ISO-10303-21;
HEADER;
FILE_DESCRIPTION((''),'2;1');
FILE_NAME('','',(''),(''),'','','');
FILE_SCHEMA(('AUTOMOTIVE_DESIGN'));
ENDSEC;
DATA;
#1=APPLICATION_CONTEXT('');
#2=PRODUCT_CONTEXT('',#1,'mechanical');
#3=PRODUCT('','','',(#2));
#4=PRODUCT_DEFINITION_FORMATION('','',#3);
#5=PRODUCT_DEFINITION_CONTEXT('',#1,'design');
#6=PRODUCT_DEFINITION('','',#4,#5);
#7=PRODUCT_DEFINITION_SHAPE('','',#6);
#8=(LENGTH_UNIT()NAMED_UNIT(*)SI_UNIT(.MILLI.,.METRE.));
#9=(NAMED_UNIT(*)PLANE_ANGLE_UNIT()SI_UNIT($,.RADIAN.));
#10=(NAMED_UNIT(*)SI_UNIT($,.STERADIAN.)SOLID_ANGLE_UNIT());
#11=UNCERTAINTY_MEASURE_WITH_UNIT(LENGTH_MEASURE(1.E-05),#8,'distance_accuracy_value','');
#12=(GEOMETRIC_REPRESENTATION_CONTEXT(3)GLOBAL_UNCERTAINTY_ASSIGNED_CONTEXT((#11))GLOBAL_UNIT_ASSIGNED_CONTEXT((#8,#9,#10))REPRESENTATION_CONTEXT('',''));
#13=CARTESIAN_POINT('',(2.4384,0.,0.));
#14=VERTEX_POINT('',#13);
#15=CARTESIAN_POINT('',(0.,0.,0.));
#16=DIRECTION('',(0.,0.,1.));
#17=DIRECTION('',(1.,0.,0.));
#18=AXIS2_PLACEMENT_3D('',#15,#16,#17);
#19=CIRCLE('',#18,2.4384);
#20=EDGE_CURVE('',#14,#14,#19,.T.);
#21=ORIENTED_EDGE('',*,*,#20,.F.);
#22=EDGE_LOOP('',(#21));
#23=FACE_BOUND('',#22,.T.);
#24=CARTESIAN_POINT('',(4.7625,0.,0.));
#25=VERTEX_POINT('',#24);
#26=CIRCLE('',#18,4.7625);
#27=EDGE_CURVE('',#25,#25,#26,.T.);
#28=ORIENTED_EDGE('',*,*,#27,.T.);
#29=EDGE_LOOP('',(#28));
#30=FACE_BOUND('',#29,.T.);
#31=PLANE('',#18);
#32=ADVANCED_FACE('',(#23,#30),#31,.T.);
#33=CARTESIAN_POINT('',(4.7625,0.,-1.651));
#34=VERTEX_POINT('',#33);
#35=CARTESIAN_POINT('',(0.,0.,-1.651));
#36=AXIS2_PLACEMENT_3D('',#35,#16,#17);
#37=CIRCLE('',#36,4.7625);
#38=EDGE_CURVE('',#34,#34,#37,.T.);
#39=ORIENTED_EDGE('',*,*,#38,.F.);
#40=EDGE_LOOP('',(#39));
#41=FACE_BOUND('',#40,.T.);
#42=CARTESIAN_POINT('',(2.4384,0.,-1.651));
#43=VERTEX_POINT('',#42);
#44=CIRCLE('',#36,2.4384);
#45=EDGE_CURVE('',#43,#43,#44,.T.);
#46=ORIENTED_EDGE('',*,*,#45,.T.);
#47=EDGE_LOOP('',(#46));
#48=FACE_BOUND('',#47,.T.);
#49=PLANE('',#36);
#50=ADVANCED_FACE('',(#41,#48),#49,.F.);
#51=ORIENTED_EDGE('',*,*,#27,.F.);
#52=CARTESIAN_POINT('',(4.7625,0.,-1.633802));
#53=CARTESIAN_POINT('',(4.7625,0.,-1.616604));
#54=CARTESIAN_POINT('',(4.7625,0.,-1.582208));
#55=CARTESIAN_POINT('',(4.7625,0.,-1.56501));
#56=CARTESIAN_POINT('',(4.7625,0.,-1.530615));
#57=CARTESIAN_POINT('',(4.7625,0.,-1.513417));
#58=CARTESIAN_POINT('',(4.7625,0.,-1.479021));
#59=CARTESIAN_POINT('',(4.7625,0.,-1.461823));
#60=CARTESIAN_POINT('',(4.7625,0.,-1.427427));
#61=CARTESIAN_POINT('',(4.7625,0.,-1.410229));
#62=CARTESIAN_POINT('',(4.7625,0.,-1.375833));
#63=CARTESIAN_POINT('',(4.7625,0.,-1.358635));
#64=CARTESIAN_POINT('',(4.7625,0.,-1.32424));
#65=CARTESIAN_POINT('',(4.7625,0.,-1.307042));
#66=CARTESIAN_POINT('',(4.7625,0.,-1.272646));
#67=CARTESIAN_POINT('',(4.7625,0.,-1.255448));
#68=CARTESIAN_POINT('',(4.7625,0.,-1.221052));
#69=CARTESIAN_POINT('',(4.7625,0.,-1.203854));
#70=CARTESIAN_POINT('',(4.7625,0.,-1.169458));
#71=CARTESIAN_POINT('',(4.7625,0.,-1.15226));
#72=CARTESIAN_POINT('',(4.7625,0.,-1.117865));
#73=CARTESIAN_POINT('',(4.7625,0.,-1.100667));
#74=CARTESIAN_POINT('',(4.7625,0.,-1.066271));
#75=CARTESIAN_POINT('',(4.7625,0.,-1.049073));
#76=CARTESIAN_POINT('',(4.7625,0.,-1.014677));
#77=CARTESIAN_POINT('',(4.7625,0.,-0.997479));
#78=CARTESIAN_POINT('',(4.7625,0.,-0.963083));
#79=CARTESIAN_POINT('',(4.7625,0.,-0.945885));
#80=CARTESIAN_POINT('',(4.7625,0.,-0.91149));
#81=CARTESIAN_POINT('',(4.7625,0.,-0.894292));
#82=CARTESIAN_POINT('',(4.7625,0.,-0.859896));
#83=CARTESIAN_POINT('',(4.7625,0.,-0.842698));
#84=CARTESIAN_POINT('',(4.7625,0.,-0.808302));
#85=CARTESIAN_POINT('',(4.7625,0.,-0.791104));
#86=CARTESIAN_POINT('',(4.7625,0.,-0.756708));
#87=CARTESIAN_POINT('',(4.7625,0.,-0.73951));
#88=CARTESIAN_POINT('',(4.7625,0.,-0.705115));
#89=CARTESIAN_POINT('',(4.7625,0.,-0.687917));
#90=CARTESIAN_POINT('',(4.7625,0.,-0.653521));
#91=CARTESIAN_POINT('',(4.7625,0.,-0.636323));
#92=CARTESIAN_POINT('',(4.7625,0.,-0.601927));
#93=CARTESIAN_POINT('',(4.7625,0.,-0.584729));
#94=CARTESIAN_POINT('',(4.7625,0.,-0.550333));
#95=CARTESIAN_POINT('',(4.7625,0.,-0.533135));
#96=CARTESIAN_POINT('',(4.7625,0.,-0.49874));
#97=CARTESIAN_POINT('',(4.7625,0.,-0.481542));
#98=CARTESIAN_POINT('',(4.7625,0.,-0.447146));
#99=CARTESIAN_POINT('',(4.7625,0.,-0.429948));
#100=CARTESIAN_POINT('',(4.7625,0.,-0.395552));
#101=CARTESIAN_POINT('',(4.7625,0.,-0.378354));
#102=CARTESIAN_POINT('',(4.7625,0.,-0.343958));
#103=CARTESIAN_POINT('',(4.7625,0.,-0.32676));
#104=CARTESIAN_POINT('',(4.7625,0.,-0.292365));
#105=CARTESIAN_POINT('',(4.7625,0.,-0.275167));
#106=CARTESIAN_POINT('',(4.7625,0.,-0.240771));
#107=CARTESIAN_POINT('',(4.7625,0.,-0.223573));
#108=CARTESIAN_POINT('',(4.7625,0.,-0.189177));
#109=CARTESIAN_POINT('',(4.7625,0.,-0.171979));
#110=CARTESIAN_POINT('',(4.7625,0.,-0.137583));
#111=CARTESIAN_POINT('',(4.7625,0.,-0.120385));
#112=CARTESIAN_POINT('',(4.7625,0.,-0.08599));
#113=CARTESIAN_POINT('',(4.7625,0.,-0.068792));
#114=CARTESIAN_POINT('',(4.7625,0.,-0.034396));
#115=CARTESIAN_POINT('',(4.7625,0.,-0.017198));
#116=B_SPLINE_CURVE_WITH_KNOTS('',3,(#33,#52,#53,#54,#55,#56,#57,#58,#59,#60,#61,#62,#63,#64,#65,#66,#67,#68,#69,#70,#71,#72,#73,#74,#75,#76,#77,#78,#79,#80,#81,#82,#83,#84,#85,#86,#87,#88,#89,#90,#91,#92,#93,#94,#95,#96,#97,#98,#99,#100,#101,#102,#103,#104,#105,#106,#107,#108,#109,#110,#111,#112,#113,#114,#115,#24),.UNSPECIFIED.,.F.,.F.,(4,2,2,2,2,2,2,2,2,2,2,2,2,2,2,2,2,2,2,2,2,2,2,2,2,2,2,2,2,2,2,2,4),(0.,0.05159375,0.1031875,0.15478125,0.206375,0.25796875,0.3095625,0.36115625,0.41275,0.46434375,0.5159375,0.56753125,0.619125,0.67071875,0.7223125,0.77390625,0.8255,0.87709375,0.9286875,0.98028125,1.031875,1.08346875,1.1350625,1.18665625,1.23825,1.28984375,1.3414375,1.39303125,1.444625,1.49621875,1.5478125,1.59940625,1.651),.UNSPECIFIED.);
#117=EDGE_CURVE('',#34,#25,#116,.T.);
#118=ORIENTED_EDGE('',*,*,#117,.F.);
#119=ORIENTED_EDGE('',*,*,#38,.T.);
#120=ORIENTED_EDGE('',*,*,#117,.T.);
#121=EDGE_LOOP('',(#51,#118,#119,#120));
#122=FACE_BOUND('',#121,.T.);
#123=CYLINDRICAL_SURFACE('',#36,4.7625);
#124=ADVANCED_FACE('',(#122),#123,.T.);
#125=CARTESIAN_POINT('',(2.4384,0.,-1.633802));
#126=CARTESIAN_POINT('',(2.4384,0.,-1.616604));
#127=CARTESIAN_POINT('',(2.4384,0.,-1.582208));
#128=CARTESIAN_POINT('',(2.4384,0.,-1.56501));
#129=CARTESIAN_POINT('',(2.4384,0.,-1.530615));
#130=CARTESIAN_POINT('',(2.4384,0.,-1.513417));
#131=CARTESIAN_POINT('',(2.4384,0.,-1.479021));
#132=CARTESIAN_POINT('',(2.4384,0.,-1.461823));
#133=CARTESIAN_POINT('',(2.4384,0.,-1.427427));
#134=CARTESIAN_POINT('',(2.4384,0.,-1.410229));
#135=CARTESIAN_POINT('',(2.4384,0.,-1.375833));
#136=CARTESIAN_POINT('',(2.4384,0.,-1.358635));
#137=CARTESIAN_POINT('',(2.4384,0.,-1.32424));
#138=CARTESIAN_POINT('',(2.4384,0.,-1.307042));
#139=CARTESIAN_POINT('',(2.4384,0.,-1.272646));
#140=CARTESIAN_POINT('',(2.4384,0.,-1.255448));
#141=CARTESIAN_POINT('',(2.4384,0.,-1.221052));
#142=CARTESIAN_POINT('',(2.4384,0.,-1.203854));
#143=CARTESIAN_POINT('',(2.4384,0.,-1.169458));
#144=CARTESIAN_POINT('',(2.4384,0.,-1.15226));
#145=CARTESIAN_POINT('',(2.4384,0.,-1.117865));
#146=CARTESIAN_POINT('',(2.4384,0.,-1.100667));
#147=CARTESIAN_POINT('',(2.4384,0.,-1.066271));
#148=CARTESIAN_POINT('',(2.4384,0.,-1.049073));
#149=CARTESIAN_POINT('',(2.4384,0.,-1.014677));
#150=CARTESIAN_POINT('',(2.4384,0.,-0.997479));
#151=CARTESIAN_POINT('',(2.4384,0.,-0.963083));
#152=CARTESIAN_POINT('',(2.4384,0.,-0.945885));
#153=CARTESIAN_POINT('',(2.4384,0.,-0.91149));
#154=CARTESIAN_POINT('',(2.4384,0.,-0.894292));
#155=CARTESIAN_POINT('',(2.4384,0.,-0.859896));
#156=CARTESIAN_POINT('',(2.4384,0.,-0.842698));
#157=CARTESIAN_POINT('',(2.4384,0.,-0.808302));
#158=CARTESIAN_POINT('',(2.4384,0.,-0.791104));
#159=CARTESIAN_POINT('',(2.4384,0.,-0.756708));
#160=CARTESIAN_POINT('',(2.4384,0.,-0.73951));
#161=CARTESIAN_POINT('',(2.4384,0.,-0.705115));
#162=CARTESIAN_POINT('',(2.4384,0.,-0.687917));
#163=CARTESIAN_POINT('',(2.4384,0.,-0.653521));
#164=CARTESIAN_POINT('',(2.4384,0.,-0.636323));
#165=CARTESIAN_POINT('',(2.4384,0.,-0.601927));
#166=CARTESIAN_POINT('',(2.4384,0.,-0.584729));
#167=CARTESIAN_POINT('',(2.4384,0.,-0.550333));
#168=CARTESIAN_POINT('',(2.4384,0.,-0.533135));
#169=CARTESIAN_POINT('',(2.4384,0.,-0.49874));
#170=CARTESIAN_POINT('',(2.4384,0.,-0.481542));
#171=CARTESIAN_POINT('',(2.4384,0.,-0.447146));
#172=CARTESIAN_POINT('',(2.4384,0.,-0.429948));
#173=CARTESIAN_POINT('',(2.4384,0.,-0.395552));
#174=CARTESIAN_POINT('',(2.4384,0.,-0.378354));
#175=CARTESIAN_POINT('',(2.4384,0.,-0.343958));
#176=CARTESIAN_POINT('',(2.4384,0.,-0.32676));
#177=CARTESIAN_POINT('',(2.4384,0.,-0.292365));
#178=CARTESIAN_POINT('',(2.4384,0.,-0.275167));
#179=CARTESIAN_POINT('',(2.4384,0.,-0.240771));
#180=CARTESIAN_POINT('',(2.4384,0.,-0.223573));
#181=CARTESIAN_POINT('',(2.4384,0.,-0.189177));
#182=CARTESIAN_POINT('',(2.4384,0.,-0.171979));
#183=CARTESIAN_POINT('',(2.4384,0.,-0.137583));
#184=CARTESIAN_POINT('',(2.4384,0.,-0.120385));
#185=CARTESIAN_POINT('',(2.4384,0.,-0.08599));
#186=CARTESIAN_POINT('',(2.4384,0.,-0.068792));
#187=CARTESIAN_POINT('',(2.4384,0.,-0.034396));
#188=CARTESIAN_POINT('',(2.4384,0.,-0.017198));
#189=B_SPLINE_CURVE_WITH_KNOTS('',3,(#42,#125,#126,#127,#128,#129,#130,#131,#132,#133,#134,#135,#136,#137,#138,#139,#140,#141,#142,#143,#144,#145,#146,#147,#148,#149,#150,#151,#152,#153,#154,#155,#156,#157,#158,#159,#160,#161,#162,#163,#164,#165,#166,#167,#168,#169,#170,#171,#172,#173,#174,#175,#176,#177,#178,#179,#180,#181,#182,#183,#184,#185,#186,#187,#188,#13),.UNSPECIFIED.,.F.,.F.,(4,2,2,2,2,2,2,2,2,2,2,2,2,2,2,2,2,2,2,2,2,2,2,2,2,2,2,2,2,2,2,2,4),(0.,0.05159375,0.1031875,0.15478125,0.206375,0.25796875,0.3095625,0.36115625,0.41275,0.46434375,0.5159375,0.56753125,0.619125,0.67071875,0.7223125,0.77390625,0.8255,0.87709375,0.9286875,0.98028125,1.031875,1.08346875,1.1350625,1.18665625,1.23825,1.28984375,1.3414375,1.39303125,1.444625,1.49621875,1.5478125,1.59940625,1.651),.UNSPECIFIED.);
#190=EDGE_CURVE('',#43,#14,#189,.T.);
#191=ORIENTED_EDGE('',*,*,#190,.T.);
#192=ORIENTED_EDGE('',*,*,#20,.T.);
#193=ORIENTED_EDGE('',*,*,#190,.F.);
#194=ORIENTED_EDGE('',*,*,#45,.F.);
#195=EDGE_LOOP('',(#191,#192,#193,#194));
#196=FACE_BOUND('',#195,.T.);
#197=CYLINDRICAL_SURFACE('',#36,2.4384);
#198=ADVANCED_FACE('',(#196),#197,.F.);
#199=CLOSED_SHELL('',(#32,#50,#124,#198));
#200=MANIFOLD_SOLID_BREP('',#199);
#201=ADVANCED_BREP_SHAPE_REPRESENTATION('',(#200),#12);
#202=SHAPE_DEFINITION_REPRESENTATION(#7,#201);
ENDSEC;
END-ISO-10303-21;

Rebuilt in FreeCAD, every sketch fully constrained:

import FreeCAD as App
import Part
import Sketcher
Q = App.Units.Quantity

doc = App.newDocument("Part")
body = doc.addObject("PartDesign::Body", "Body")

# Sketch on XY plane
sketch1 = body.newObject("Sketcher::SketchObject", "Sketch")
sketch1.AttachmentSupport = (doc.getObject("XY_Plane"), [""])
sketch1.MapMode = "FlatFace"
sketch1.addGeometry([
    Part.Circle(App.Vector(0, 0, 0), App.Vector(0, 0, 1), 4.8),
    Part.Circle(App.Vector(0, 0, 0), App.Vector(0, 0, 1), 2.4),
], False)
sketch1.addConstraint([
    Sketcher.Constraint("Coincident", 0, 3, -1, 1),
    Sketcher.Constraint("Coincident", 1, 3, -1, 1),
    Sketcher.Constraint("Diameter", 0, Q("0.375 in")),
    Sketcher.Constraint("Diameter", 1, Q("0.192 in")),
])
pad1 = body.newObject("PartDesign::Pad", "Pad")
pad1.Profile = sketch1
pad1.Length = Q("0.065 in")
pad1.Reversed = True

doc.recompute()
